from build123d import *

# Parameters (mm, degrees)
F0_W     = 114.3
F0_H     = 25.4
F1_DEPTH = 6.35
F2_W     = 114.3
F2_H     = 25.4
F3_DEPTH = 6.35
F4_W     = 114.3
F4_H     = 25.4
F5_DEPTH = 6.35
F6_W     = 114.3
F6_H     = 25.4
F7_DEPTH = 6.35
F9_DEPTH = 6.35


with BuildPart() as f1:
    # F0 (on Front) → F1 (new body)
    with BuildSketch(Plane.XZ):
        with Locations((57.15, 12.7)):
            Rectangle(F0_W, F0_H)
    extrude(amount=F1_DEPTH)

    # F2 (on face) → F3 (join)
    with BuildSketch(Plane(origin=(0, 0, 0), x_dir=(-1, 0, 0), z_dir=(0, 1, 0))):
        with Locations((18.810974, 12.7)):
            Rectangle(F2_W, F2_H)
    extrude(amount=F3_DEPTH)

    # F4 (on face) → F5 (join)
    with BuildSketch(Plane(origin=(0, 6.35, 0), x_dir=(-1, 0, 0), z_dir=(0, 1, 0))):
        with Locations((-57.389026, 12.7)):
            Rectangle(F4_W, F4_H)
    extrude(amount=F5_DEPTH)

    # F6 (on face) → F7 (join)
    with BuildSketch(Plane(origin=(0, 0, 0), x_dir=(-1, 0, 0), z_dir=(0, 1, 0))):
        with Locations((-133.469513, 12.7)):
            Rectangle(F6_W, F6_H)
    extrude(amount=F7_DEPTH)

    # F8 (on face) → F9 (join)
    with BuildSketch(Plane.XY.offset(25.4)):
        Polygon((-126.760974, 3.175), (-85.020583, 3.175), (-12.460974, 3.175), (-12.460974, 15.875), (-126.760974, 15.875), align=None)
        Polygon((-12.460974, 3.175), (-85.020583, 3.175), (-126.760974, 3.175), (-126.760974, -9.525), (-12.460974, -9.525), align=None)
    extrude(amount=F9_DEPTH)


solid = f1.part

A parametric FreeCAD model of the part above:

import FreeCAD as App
import Part
import Sketcher
from FreeCAD import Vector
Q = App.Units.Quantity

doc = App.newDocument("Part")
params = doc.addObject("Spreadsheet::Sheet", "Params")
for row, (alias, value) in enumerate([
    ("sketch1_height", "1 in"),
    ("sketch1_width", "4.5 in"),
    ("pad1_length", "0.25 in"),
    ("sketch2_height", "1 in"),
    ("sketch2_width", "4.5 in"),
    ("pad2_length", "0.25 in"),
    ("sketch3_height", "1 in"),
    ("sketch3_width", "4.5 in"),
    ("pad3_length", "0.25 in"),
    ("sketch4_height", "1 in"),
    ("sketch4_width", "4.5 in"),
    ("pad4_length", "0.25 in"),
    ("sketch5_height", "1 in"),
    ("sketch5_width", "4.5 in"),
    ("pad5_length", "0.25 in"),
], start=1):
    params.set(f"A{row}", alias)
    params.set(f"B{row}", "=" + value)
    params.setAlias(f"B{row}", alias)

body = doc.addObject("PartDesign::Body", "Body")

sketch1 = body.newObject("Sketcher::SketchObject", "Sketch")
sketch1.AttachmentSupport = (doc.getObject("XZ_Plane"), [""])
sketch1.MapMode = "FlatFace"
sketch1.addGeometry(Part.LineSegment(Vector(0, 25, 0), Vector(0, 0, 0)), False)
sketch1.addGeometry(Part.LineSegment(Vector(0, 0, 0), Vector(114, 0, 0)), False)
sketch1.addGeometry(Part.LineSegment(Vector(114, 0, 0), Vector(114, 25, 0)), False)
sketch1.addGeometry(Part.LineSegment(Vector(114, 25, 0), Vector(0, 25, 0)), False)
sketch1.addConstraint(Sketcher.Constraint("Coincident", 0, 2, 1, 1))
sketch1.addConstraint(Sketcher.Constraint("Coincident", 1, 2, 2, 1))
sketch1.addConstraint(Sketcher.Constraint("Coincident", 2, 2, 3, 1))
sketch1.addConstraint(Sketcher.Constraint("Coincident", 3, 2, 0, 1))
sketch1.addConstraint(Sketcher.Constraint("Vertical", 0))
sketch1.addConstraint(Sketcher.Constraint("Horizontal", 1))
sketch1.addConstraint(Sketcher.Constraint("Vertical", 2))
sketch1.addConstraint(Sketcher.Constraint("Horizontal", 3))
sketch1.addConstraint(Sketcher.Constraint("Coincident", 0, 2, -1, 1))
sketch1.addConstraint(Sketcher.Constraint("DistanceY", 0, 2, 0, 1, Q("1 in")))
sketch1.addConstraint(Sketcher.Constraint("DistanceX", 1, 1, 1, 2, Q("4.5 in")))
sketch1.setExpression("Constraints[9]", "Params.sketch1_height")
sketch1.setExpression("Constraints[10]", "Params.sketch1_width")
pad1 = body.newObject("PartDesign::Pad", "Pad")
pad1.Profile = sketch1
pad1.setExpression("Length", "Params.pad1_length")

sketch2 = body.newObject("Sketcher::SketchObject", "Sketch001")
sketch2.AttachmentSupport = (doc.getObject("XZ_Plane"), [""])
sketch2.MapMode = "FlatFace"
sketch2.addGeometry(Part.LineSegment(Vector(38, 25, 0), Vector(38, 0, 0)), False)
sketch2.addGeometry(Part.LineSegment(Vector(38, 0, 0), Vector(-76, 0, 0)), False)
sketch2.addGeometry(Part.LineSegment(Vector(-76, 0, 0), Vector(-76, 25, 0)), False)
sketch2.addGeometry(Part.LineSegment(Vector(-76, 25, 0), Vector(38, 25, 0)), False)
sketch2.addConstraint(Sketcher.Constraint("Coincident", 0, 2, 1, 1))
sketch2.addConstraint(Sketcher.Constraint("Coincident", 1, 2, 2, 1))
sketch2.addConstraint(Sketcher.Constraint("Coincident", 2, 2, 3, 1))
sketch2.addConstraint(Sketcher.Constraint("Coincident", 3, 2, 0, 1))
sketch2.addConstraint(Sketcher.Constraint("Vertical", 0))
sketch2.addConstraint(Sketcher.Constraint("Horizontal", 1))
sketch2.addConstraint(Sketcher.Constraint("Vertical", 2))
sketch2.addConstraint(Sketcher.Constraint("Horizontal", 3))
sketch2.addConstraint(Sketcher.Constraint("PointOnObject", 0, 2, -1))
sketch2.addConstraint(Sketcher.Constraint("DistanceY", 0, 2, 0, 1, Q("1 in")))
sketch2.addConstraint(Sketcher.Constraint("DistanceX", 1, 2, 1, 1, Q("4.5 in")))
sketch2.addConstraint(Sketcher.Constraint("DistanceX", -1, 1, 0, 2, 38.339026))
sketch2.setExpression("Constraints[9]", "Params.sketch2_height")
sketch2.setExpression("Constraints[10]", "Params.sketch2_width")
pad2 = body.newObject("PartDesign::Pad", "Pad001")
pad2.Profile = sketch2
pad2.setExpression("Length", "Params.pad2_length")
pad2.Reversed = True

sketch3 = body.newObject("Sketcher::SketchObject", "Sketch002")
sketch3.AttachmentSupport = (doc.getObject("XZ_Plane"), [""])
sketch3.MapMode = "FlatFace"
sketch3.AttachmentOffset = App.Placement(Vector(0, 0, -0.25 * 25.4), App.Rotation())
sketch3.addGeometry(Part.LineSegment(Vector(115, 25, 0), Vector(115, 0, 0)), False)
sketch3.addGeometry(Part.LineSegment(Vector(115, 0, 0), Vector(0, 0, 0)), False)
sketch3.addGeometry(Part.LineSegment(Vector(0, 0, 0), Vector(0, 25, 0)), False)
sketch3.addGeometry(Part.LineSegment(Vector(0, 25, 0), Vector(115, 25, 0)), False)
sketch3.addConstraint(Sketcher.Constraint("Coincident", 0, 2, 1, 1))
sketch3.addConstraint(Sketcher.Constraint("Coincident", 1, 2, 2, 1))
sketch3.addConstraint(Sketcher.Constraint("Coincident", 2, 2, 3, 1))
sketch3.addConstraint(Sketcher.Constraint("Coincident", 3, 2, 0, 1))
sketch3.addConstraint(Sketcher.Constraint("Vertical", 0))
sketch3.addConstraint(Sketcher.Constraint("Horizontal", 1))
sketch3.addConstraint(Sketcher.Constraint("Vertical", 2))
sketch3.addConstraint(Sketcher.Constraint("Horizontal", 3))
sketch3.addConstraint(Sketcher.Constraint("PointOnObject", 0, 2, -1))
sketch3.addConstraint(Sketcher.Constraint("DistanceY", 0, 2, 0, 1, Q("1 in")))
sketch3.addConstraint(Sketcher.Constraint("DistanceX", 1, 2, 1, 1, Q("4.5 in")))
sketch3.addConstraint(Sketcher.Constraint("DistanceX", -1, 1, 0, 2, 114.539026))
sketch3.setExpression("Constraints[9]", "Params.sketch3_height")
sketch3.setExpression("Constraints[10]", "Params.sketch3_width")
pad3 = body.newObject("PartDesign::Pad", "Pad002")
pad3.Profile = sketch3
pad3.setExpression("Length", "Params.pad3_length")
pad3.Reversed = True

sketch4 = body.newObject("Sketcher::SketchObject", "Sketch003")
sketch4.AttachmentSupport = (doc.getObject("XZ_Plane"), [""])
sketch4.MapMode = "FlatFace"
sketch4.addGeometry(Part.LineSegment(Vector(191, 25, 0), Vector(191, 0, 0)), False)
sketch4.addGeometry(Part.LineSegment(Vector(191, 0, 0), Vector(76, 0, 0)), False)
sketch4.addGeometry(Part.LineSegment(Vector(76, 0, 0), Vector(76, 25, 0)), False)
sketch4.addGeometry(Part.LineSegment(Vector(76, 25, 0), Vector(191, 25, 0)), False)
sketch4.addConstraint(Sketcher.Constraint("Coincident", 0, 2, 1, 1))
sketch4.addConstraint(Sketcher.Constraint("Coincident", 1, 2, 2, 1))
sketch4.addConstraint(Sketcher.Constraint("Coincident", 2, 2, 3, 1))
sketch4.addConstraint(Sketcher.Constraint("Coincident", 3, 2, 0, 1))
sketch4.addConstraint(Sketcher.Constraint("Vertical", 0))
sketch4.addConstraint(Sketcher.Constraint("Horizontal", 1))
sketch4.addConstraint(Sketcher.Constraint("Vertical", 2))
sketch4.addConstraint(Sketcher.Constraint("Horizontal", 3))
sketch4.addConstraint(Sketcher.Constraint("PointOnObject", 0, 2, -1))
sketch4.addConstraint(Sketcher.Constraint("DistanceY", 0, 2, 0, 1, Q("1 in")))
sketch4.addConstraint(Sketcher.Constraint("DistanceX", 1, 2, 1, 1, Q("4.5 in")))
sketch4.addConstraint(Sketcher.Constraint("DistanceX", -1, 1, 0, 2, 190.619513))
sketch4.setExpression("Constraints[9]", "Params.sketch4_height")
sketch4.setExpression("Constraints[10]", "Params.sketch4_width")
pad4 = body.newObject("PartDesign::Pad", "Pad003")
pad4.Profile = sketch4
pad4.setExpression("Length", "Params.pad4_length")
pad4.Reversed = True

sketch5 = body.newObject("Sketcher::SketchObject", "Sketch004")
sketch5.AttachmentSupport = (doc.getObject("XY_Plane"), [""])
sketch5.MapMode = "FlatFace"
sketch5.AttachmentOffset = App.Placement(Vector(0, 0, 1 * 25.4), App.Rotation())
sketch5.addGeometry(Part.LineSegment(Vector(-12, 16, 0), Vector(-127, 16, 0)), False)
sketch5.addGeometry(Part.LineSegment(Vector(-127, 16, 0), Vector(-127, -10, 0)), False)
sketch5.addGeometry(Part.LineSegment(Vector(-127, -10, 0), Vector(-12, -10, 0)), False)
sketch5.addGeometry(Part.LineSegment(Vector(-12, -10, 0), Vector(-12, 16, 0)), False)
sketch5.addConstraint(Sketcher.Constraint("Coincident", 0, 2, 1, 1))
sketch5.addConstraint(Sketcher.Constraint("Coincident", 1, 2, 2, 1))
sketch5.addConstraint(Sketcher.Constraint("Coincident", 2, 2, 3, 1))
sketch5.addConstraint(Sketcher.Constraint("Coincident", 3, 2, 0, 1))
sketch5.addConstraint(Sketcher.Constraint("Horizontal", 0))
sketch5.addConstraint(Sketcher.Constraint("Vertical", 1))
sketch5.addConstraint(Sketcher.Constraint("Horizontal", 2))
sketch5.addConstraint(Sketcher.Constraint("Vertical", 3))
sketch5.addConstraint(Sketcher.Constraint("DistanceY", 1, 2, 1, 1, Q("1 in")))
sketch5.addConstraint(Sketcher.Constraint("DistanceX", 0, 2, 0, 1, Q("4.5 in")))
sketch5.addConstraint(Sketcher.Constraint("DistanceY", -1, 1, 0, 2, Q("0.625 in")))
sketch5.addConstraint(Sketcher.Constraint("DistanceX", 0, 2, -1, 1, 126.760974))
sketch5.setExpression("Constraints[8]", "Params.sketch5_height")
sketch5.setExpression("Constraints[9]", "Params.sketch5_width")
pad5 = body.newObject("PartDesign::Pad", "Pad004")
pad5.Profile = sketch5
pad5.setExpression("Length", "Params.pad5_length")

doc.recompute()
